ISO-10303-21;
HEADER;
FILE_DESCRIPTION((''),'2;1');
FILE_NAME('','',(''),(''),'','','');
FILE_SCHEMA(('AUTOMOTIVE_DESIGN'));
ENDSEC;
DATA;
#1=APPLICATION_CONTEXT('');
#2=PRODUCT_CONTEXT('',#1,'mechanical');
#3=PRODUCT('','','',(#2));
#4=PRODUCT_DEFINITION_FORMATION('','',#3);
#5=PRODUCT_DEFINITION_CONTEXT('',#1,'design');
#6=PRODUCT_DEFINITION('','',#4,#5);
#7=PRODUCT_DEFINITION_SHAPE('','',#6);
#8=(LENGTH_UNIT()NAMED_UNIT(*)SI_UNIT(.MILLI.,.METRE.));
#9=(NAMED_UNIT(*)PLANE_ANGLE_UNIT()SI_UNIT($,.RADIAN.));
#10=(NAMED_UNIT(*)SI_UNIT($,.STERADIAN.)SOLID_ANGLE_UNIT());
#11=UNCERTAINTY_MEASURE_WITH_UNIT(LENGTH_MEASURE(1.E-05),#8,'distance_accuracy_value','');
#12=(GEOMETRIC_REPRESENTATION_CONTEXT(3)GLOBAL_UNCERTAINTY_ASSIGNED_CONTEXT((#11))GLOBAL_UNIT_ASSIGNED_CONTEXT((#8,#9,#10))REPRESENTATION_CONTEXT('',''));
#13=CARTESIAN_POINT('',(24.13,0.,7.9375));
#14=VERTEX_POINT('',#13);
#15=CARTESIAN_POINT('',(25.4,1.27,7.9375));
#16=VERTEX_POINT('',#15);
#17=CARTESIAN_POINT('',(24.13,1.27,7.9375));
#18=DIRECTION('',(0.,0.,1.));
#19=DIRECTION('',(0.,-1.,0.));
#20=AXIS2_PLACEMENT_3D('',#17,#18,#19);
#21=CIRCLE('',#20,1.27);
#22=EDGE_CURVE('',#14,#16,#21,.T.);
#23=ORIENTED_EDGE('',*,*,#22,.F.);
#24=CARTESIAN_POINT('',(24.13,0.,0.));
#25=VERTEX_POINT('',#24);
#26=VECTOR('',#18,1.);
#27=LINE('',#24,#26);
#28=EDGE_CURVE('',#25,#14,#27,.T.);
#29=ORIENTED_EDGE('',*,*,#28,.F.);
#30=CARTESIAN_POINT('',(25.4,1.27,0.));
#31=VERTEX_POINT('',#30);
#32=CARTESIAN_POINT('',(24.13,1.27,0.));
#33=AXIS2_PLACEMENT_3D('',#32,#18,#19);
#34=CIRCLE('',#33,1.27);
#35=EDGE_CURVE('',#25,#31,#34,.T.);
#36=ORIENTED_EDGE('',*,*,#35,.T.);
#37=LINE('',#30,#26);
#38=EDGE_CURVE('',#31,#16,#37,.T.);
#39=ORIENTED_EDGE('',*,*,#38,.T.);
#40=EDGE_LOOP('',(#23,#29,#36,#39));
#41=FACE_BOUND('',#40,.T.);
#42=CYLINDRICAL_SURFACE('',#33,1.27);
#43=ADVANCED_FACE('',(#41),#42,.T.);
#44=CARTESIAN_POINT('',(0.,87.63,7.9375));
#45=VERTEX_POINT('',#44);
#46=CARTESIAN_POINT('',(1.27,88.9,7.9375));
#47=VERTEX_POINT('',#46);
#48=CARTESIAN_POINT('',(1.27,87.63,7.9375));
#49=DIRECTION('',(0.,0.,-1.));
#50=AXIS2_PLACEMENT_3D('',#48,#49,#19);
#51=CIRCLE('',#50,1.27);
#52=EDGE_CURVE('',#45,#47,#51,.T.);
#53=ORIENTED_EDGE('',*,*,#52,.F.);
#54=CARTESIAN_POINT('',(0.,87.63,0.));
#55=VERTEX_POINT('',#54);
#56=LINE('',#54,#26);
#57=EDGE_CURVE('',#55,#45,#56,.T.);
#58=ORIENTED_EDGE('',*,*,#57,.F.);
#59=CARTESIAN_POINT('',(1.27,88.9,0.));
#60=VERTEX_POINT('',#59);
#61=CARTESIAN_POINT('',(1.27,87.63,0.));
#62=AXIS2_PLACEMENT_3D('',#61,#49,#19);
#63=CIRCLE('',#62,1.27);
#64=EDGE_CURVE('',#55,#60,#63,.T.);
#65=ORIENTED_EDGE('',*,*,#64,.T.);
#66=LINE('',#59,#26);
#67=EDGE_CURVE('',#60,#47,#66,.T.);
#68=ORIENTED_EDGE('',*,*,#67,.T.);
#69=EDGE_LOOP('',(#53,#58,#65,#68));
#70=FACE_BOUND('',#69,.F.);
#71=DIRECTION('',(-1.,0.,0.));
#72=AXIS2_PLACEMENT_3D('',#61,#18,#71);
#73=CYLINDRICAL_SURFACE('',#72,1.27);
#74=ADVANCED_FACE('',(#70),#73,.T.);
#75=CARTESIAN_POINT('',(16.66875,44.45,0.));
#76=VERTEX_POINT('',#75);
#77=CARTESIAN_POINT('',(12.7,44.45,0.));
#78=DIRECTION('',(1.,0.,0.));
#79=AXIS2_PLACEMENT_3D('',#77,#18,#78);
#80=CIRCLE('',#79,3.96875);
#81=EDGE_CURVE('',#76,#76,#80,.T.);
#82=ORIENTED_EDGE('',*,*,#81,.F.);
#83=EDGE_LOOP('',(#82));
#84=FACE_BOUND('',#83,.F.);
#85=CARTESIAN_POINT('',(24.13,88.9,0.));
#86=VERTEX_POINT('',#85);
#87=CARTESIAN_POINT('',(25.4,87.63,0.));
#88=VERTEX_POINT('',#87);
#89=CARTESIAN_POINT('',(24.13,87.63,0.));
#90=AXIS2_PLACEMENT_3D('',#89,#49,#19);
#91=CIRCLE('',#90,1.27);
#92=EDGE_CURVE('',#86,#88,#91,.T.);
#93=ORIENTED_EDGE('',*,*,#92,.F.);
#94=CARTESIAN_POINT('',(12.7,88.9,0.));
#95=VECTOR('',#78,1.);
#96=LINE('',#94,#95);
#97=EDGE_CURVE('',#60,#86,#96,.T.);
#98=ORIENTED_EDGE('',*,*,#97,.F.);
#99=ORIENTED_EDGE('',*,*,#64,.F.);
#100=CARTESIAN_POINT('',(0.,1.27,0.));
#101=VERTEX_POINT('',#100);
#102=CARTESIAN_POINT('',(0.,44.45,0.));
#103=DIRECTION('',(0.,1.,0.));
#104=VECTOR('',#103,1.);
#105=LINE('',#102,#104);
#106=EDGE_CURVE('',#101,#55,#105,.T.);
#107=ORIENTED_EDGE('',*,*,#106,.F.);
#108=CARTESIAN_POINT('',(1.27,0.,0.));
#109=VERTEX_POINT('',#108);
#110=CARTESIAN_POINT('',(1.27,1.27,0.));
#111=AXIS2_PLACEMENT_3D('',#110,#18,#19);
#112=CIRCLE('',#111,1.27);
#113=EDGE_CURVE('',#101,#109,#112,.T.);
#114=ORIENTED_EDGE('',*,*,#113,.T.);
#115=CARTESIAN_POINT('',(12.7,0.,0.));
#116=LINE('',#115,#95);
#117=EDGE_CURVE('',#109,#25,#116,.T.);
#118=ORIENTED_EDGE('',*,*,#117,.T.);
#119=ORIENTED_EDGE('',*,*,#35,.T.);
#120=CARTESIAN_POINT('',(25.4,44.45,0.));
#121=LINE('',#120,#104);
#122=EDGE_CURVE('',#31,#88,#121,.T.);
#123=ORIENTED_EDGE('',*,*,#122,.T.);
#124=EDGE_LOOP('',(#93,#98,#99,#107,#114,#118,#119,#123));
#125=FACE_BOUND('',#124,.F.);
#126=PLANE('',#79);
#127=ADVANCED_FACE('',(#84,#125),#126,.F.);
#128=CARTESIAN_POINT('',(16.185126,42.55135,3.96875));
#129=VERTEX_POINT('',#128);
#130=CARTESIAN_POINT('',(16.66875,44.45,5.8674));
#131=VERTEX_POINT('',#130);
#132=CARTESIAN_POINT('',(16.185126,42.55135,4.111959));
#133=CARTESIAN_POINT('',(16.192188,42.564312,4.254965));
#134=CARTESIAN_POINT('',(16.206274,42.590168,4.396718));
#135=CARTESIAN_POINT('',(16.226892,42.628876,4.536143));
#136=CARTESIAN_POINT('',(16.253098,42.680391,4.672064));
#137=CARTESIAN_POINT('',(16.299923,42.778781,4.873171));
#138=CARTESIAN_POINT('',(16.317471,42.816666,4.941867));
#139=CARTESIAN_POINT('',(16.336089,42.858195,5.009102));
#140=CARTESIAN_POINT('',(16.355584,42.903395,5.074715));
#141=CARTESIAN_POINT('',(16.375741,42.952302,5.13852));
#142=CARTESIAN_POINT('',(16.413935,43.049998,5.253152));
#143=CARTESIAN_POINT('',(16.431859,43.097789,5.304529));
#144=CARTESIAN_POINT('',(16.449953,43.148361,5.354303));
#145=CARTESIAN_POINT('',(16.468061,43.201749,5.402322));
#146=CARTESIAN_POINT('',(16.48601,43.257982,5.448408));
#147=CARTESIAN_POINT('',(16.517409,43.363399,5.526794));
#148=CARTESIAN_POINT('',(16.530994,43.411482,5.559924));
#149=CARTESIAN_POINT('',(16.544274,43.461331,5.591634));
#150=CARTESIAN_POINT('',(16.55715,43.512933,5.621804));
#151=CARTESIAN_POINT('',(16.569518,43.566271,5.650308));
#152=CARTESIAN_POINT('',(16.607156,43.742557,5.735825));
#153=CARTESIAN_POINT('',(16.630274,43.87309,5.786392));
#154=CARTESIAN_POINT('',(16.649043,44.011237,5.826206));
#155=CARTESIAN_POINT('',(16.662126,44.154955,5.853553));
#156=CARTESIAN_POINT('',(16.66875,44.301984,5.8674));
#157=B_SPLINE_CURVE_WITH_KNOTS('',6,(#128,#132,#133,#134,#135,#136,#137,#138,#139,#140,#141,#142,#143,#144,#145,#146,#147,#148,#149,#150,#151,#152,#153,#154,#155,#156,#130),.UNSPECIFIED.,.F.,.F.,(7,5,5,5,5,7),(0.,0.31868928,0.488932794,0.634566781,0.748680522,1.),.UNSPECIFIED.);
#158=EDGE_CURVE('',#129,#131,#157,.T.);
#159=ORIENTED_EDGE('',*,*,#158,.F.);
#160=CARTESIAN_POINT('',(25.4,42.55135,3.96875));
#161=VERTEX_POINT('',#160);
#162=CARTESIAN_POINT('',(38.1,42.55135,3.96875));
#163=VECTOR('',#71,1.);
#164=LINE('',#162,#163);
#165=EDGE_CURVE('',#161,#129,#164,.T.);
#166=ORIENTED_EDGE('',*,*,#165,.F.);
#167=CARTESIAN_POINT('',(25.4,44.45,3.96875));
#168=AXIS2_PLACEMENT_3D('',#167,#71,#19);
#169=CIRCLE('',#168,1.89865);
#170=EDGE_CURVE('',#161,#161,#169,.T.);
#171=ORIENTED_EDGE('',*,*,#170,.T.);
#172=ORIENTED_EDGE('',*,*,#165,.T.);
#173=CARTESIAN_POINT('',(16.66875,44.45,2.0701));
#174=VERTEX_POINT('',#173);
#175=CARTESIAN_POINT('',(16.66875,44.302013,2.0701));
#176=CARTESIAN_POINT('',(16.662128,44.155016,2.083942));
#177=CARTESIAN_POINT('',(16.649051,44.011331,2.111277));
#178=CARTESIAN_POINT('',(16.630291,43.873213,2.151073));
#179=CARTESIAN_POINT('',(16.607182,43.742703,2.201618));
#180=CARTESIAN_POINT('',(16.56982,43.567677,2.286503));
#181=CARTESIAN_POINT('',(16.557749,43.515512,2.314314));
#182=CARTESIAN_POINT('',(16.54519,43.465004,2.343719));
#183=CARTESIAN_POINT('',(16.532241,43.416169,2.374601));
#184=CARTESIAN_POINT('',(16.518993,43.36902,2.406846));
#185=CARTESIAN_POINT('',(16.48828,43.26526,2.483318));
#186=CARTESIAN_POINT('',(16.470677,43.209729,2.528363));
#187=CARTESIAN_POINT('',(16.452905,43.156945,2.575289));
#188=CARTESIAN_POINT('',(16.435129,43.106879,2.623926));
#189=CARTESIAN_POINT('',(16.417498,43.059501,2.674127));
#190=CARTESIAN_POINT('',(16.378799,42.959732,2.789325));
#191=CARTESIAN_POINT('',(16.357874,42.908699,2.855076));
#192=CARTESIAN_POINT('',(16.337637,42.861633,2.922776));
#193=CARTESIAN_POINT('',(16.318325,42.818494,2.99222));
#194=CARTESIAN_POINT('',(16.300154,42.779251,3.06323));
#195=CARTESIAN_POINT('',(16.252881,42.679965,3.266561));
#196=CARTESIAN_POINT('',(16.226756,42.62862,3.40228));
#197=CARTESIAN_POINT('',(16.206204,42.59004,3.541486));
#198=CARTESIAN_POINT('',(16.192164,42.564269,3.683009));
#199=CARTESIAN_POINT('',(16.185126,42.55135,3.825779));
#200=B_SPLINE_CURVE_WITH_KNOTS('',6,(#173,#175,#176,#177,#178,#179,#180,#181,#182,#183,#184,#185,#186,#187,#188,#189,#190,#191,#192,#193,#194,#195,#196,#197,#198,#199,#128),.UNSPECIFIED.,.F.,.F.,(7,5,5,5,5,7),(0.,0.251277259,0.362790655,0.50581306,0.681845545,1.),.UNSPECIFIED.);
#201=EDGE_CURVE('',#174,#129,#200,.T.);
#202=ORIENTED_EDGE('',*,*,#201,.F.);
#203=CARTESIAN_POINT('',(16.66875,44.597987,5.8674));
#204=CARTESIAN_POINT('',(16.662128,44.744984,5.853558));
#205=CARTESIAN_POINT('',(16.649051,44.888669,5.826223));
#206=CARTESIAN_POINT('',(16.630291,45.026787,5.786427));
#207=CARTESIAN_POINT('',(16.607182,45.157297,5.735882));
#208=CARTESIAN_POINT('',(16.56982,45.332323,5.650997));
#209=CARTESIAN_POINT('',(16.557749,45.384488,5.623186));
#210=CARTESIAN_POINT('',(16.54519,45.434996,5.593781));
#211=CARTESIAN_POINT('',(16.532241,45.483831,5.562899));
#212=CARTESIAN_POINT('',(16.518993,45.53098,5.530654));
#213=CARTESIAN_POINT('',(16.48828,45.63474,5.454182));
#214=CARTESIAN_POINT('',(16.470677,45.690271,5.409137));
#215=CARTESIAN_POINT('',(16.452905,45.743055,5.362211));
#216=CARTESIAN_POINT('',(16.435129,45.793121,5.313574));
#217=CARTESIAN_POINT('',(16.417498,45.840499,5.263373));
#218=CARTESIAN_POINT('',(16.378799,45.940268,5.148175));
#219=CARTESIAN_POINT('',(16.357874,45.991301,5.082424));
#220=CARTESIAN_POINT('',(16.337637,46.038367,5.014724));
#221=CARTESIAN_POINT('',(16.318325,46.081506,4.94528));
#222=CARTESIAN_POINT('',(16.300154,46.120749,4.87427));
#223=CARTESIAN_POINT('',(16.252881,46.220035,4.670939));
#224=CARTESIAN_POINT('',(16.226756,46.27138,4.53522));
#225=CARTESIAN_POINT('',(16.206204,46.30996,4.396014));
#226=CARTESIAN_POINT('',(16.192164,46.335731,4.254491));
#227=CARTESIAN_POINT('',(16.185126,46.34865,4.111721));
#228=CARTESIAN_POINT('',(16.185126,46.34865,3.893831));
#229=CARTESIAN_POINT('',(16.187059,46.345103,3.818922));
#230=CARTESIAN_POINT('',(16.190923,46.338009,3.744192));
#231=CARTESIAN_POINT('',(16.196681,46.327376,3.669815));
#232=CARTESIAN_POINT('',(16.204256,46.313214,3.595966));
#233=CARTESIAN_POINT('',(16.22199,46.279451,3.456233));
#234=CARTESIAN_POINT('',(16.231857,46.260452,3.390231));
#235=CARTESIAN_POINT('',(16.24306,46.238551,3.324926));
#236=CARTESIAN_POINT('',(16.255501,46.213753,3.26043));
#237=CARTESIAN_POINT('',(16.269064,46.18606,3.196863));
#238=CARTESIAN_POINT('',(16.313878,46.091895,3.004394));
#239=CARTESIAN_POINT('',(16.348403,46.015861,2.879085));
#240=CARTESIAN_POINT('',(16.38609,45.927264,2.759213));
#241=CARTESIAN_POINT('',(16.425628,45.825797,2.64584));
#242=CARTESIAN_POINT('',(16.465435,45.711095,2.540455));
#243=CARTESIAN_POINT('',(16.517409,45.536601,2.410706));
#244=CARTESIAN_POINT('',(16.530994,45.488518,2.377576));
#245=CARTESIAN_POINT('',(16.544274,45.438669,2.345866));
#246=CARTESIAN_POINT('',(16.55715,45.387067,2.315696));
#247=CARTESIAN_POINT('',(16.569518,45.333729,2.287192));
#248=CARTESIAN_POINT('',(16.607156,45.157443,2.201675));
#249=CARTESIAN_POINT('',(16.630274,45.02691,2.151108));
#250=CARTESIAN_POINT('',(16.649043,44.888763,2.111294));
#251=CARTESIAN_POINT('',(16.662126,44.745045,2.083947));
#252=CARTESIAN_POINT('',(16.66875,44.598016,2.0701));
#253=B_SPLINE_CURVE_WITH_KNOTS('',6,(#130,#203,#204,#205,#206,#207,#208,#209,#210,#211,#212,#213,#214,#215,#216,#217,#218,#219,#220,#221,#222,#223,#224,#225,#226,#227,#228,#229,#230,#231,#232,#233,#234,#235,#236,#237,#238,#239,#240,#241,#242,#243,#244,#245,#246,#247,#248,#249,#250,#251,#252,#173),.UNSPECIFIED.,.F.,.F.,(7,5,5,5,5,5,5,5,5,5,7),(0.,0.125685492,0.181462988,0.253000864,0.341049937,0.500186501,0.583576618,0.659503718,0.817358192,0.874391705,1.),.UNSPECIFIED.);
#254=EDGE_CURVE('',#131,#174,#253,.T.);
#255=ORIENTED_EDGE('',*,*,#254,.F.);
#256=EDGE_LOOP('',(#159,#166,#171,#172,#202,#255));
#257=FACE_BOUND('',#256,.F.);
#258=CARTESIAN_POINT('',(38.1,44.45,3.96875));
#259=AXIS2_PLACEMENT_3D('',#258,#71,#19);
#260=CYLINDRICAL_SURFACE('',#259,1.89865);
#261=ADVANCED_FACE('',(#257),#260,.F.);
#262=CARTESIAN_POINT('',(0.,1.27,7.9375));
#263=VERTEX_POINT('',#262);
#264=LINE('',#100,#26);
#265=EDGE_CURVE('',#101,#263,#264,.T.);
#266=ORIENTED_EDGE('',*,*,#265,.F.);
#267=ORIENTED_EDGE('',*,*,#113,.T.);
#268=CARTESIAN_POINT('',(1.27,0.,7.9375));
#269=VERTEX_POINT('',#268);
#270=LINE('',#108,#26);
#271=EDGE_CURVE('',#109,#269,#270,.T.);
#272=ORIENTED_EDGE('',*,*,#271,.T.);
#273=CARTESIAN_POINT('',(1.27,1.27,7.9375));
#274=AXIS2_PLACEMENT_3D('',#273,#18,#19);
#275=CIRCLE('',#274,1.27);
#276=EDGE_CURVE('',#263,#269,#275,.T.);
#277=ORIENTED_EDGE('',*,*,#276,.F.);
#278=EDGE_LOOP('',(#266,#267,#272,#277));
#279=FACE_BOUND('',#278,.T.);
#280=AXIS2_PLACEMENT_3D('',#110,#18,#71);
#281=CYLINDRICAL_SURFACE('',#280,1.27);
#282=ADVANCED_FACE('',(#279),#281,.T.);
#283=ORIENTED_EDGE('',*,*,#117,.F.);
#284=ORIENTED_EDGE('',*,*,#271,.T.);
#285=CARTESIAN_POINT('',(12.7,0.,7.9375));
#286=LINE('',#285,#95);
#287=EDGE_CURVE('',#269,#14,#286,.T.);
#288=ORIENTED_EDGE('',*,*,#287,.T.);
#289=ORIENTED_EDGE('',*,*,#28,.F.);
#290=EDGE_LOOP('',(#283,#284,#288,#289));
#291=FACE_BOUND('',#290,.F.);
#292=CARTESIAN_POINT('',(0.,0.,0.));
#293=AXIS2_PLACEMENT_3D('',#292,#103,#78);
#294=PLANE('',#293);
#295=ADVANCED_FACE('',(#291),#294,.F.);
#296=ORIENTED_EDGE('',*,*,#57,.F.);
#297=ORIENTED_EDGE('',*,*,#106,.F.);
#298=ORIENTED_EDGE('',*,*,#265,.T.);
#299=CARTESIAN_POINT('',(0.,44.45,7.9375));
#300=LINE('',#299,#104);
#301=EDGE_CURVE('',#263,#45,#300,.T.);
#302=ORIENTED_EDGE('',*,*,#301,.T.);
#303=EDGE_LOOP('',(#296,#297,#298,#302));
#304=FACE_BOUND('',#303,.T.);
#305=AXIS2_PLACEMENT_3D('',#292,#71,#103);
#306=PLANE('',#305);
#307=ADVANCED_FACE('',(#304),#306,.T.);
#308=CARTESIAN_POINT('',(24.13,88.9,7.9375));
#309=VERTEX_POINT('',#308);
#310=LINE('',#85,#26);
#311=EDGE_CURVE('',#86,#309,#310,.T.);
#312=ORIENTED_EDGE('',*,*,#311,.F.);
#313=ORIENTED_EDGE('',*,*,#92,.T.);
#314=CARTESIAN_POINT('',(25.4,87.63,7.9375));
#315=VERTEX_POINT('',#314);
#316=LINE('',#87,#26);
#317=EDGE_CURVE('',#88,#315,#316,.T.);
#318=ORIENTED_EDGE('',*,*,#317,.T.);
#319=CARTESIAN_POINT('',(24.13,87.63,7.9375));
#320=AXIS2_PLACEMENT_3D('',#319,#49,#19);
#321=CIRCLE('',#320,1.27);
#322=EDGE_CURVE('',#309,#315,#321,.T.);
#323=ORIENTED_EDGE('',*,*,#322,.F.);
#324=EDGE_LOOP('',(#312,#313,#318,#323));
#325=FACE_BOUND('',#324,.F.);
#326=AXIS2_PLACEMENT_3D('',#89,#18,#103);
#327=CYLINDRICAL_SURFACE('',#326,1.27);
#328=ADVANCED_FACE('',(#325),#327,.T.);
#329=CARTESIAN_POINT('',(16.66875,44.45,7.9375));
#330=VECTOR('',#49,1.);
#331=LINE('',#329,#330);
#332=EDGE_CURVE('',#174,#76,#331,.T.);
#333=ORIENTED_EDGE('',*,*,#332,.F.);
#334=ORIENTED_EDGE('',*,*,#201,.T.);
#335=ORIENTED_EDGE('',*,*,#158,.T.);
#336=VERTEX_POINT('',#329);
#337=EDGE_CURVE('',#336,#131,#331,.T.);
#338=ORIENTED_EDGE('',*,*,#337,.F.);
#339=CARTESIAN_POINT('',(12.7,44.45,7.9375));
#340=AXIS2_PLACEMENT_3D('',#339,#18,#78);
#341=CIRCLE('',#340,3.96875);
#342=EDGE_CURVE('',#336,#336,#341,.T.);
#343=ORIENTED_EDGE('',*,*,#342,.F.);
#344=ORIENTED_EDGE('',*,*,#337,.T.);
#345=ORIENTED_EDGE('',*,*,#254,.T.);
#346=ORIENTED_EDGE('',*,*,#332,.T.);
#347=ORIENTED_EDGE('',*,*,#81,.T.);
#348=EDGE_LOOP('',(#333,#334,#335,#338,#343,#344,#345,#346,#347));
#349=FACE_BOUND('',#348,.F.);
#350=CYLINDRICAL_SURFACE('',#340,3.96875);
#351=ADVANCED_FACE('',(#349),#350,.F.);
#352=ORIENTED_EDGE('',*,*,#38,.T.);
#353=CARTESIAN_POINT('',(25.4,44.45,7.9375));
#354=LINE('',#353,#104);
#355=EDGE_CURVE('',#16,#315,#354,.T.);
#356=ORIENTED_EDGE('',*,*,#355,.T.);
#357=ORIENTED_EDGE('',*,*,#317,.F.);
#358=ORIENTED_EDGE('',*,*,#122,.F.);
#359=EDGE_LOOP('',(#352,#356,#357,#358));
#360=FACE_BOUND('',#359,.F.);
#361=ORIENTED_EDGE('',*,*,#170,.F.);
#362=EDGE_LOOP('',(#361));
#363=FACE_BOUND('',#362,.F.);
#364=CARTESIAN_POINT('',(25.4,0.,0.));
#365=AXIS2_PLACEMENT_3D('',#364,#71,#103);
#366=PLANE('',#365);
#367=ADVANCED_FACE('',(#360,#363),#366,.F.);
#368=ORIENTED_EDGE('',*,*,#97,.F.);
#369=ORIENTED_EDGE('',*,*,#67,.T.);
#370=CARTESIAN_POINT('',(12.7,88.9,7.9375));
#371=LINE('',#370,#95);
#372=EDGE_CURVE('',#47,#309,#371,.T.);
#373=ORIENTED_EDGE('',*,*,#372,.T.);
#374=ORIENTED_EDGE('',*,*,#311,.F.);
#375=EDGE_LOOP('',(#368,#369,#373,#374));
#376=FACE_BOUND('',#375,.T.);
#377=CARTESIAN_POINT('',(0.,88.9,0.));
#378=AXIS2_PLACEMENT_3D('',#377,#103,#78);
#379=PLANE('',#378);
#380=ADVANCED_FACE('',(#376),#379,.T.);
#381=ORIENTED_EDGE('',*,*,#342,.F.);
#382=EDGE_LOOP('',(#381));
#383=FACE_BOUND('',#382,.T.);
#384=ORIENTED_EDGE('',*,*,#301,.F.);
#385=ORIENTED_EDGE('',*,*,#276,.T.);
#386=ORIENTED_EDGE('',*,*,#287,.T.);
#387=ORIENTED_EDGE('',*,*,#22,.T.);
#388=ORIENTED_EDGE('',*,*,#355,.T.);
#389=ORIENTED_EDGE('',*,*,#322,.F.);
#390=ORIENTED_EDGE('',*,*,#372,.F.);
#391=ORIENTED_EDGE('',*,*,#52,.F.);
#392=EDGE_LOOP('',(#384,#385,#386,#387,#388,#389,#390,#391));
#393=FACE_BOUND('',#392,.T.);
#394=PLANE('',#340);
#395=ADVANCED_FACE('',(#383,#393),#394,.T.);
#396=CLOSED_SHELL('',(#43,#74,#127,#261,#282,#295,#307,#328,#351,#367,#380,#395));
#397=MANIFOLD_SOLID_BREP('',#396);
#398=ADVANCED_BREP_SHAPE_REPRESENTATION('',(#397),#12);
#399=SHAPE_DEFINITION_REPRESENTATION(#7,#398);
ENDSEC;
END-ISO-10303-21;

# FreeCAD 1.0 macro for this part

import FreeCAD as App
import Part
import Sketcher
from FreeCAD import Vector
Q = App.Units.Quantity


def edges_at(feature, points):
    """Names of the edges that pass closest to the given points."""
    edges = feature.Shape.Edges
    near = lambda p: min(range(len(edges)), key=lambda i: edges[i].distToShape(Part.Vertex(*p))[0])
    return sorted({f"Edge{near(p) + 1}" for p in points})


def add_polygon(sketch, points):
    """Adds a closed chain of lines whose ends are joined by coincident constraints."""
    first, n = sketch.GeometryCount, len(points)
    for a, b in zip(points, points[1:] + points[:1]):
        sketch.addGeometry(Part.LineSegment(App.Vector(*a, 0), App.Vector(*b, 0)), False)
    for i in range(n):
        sketch.addConstraint(Sketcher.Constraint("Coincident", first + i, 2, first + (i + 1) % n, 1))

doc = App.newDocument("Part")
body = doc.addObject("PartDesign::Body", "Body")

sketch1 = body.newObject("Sketcher::SketchObject", "Sketch")
sketch1.AttachmentSupport = (doc.getObject("XY_Plane"), [""])
sketch1.MapMode = "FlatFace"
add_polygon(sketch1, [(0, 89), (0, 0), (25, 0), (25, 89)])
sketch1.addConstraint(Sketcher.Constraint("Vertical", 0))
sketch1.addConstraint(Sketcher.Constraint("Horizontal", 1))
sketch1.addConstraint(Sketcher.Constraint("Vertical", 2))
sketch1.addConstraint(Sketcher.Constraint("Horizontal", 3))
sketch1.addConstraint(Sketcher.Constraint("Coincident", 0, 2, -1, 1))
sketch1.addConstraint(Sketcher.Constraint("DistanceX", 1, 1, 1, 2, Q("1 in")))
sketch1.addConstraint(Sketcher.Constraint("DistanceY", 0, 2, 0, 1, Q("3.5 in")))
pad1 = body.newObject("PartDesign::Pad", "Pad")
pad1.Profile = sketch1
pad1.Length = Q("0.3125 in")

sketch2 = body.newObject("Sketcher::SketchObject", "Sketch001")
sketch2.AttachmentSupport = (doc.getObject("XY_Plane"), [""])
sketch2.MapMode = "FlatFace"
sketch2.AttachmentOffset = App.Placement(Vector(0, 0, 0.3125 * 25.4), App.Rotation())
sketch2.addGeometry(Part.Circle(Vector(12.7, 44.5, 0), Vector(0, 0, 1), 4), False)
sketch2.addConstraint(Sketcher.Constraint("Diameter", 0, Q("0.3125 in")))
sketch2.addConstraint(Sketcher.Constraint("DistanceX", -1, 1, 0, 3, Q("0.5 in")))
sketch2.addConstraint(Sketcher.Constraint("DistanceY", -1, 1, 0, 3, Q("1.75 in")))
pocket1 = body.newObject("PartDesign::Pocket", "Pocket")
pocket1.Profile = sketch2
pocket1.Type = "ThroughAll"

sketch3 = body.newObject("Sketcher::SketchObject", "Sketch002")
sketch3.AttachmentSupport = (doc.getObject("YZ_Plane"), [""])
sketch3.MapMode = "FlatFace"
sketch3.AttachmentOffset = App.Placement(Vector(0, 0, 1 * 25.4), App.Rotation())
sketch3.addGeometry(Part.Circle(Vector(44.5, 4, 0), Vector(0, 0, 1), 1.9), False)
sketch3.addConstraint(Sketcher.Constraint("Diameter", 0, Q("0.1495 in")))
sketch3.addConstraint(Sketcher.Constraint("DistanceX", -1, 1, 0, 3, Q("1.75 in")))
sketch3.addConstraint(Sketcher.Constraint("DistanceY", -1, 1, 0, 3, Q("0.15625 in")))
doc.recompute()
hole = body.newObject("PartDesign::Hole", "Hole")
hole.Profile = sketch3
hole.ThreadType = "None"
hole.Diameter = Q("0.1495 in")
hole.DepthType = "Dimension"
hole.Depth = Q("0.5 in")
hole.DrillPoint = "Angled"
hole.DrillPointAngle = 118
doc.recompute()

fillet = body.newObject("PartDesign::Fillet", "Fillet")
fillet.Base = (hole, edges_at(hole, [
    (25.4, 88.9, 3.969),
    (0, 88.9, 3.969),
    (25.4, 0, 3.969),
    (0, 0, 3.969),
]))
fillet.Radius = Q("0.05 in")

doc.recompute()
